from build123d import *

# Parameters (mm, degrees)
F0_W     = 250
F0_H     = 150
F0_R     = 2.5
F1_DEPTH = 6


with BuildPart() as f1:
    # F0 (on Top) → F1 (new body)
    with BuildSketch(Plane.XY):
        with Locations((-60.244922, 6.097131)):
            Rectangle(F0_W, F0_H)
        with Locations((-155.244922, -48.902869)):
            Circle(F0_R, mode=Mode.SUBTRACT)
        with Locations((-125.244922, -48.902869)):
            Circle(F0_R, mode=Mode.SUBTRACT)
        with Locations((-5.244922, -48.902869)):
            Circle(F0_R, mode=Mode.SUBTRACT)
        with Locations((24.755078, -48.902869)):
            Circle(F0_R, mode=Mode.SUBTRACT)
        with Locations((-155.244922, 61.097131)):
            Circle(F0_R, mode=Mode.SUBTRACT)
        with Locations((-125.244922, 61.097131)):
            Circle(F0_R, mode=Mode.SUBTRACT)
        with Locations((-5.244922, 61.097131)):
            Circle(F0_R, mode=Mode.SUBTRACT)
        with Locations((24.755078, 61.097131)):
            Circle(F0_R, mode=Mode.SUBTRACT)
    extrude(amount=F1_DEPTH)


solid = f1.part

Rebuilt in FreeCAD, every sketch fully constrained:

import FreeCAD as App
import Part
import Sketcher
Q = App.Units.Quantity


def add_polygon(sketch, points):
    """Adds a closed chain of lines whose ends are joined by coincident constraints."""
    first, n = sketch.GeometryCount, len(points)
    for a, b in zip(points, points[1:] + points[:1]):
        sketch.addGeometry(Part.LineSegment(App.Vector(*a, 0), App.Vector(*b, 0)), False)
    for i in range(n):
        sketch.addConstraint(Sketcher.Constraint("Coincident", first + i, 2, first + (i + 1) % n, 1))

doc = App.newDocument("Part")
body = doc.addObject("PartDesign::Body", "Body")

sketch1 = body.newObject("Sketcher::SketchObject", "Sketch")
sketch1.AttachmentSupport = (doc.getObject("XY_Plane"), [""])
sketch1.MapMode = "FlatFace"
add_polygon(sketch1, [(-185.244922, 81.097131), (-185.244922, -68.902869), (64.755078, -68.902869), (64.755078, 81.097131)])
sketch1.addGeometry(Part.Circle(App.Vector(-155.244922, -48.902869, 0), App.Vector(0, 0, 1), 2.5), False)
sketch1.addGeometry(Part.Circle(App.Vector(-125.244922, -48.902869, 0), App.Vector(0, 0, 1), 2.5), False)
sketch1.addGeometry(Part.Circle(App.Vector(-5.244922, -48.902869, 0), App.Vector(0, 0, 1), 2.5), False)
sketch1.addGeometry(Part.Circle(App.Vector(24.755078, -48.902869, 0), App.Vector(0, 0, 1), 2.5), False)
sketch1.addGeometry(Part.Circle(App.Vector(-155.244922, 61.097131, 0), App.Vector(0, 0, 1), 2.5), False)
sketch1.addGeometry(Part.Circle(App.Vector(-125.244922, 61.097131, 0), App.Vector(0, 0, 1), 2.5), False)
sketch1.addGeometry(Part.Circle(App.Vector(-5.244922, 61.097131, 0), App.Vector(0, 0, 1), 2.5), False)
sketch1.addGeometry(Part.Circle(App.Vector(24.755078, 61.097131, 0), App.Vector(0, 0, 1), 2.5), False)
sketch1.addConstraint([
    Sketcher.Constraint("Vertical", 0),
    Sketcher.Constraint("Horizontal", 1),
    Sketcher.Constraint("Vertical", 2),
    Sketcher.Constraint("Horizontal", 3),
    Sketcher.Constraint("Equal", 4, 5),
    Sketcher.Constraint("Equal", 5, 6),
    Sketcher.Constraint("Equal", 6, 7),
    Sketcher.Constraint("Equal", 7, 8),
    Sketcher.Constraint("Equal", 8, 9),
    Sketcher.Constraint("Equal", 9, 10),
    Sketcher.Constraint("Equal", 10, 11),
    Sketcher.Constraint("Horizontal", 4, 3, 5, 3),
    Sketcher.Constraint("Horizontal", 5, 3, 6, 3),
    Sketcher.Constraint("Horizontal", 6, 3, 7, 3),
    Sketcher.Constraint("Horizontal", 8, 3, 9, 3),
    Sketcher.Constraint("Horizontal", 9, 3, 10, 3),
    Sketcher.Constraint("Horizontal", 10, 3, 11, 3),
    Sketcher.Constraint("Vertical", 4, 3, 8, 3),
    Sketcher.Constraint("Vertical", 5, 3, 9, 3),
    Sketcher.Constraint("Vertical", 6, 3, 10, 3),
    Sketcher.Constraint("Vertical", 7, 3, 11, 3),
    Sketcher.Constraint("Diameter", 4, Q("5 mm")),
    Sketcher.Constraint("DistanceX", 1, 1, 1, 2, Q("250 mm")),
    Sketcher.Constraint("DistanceY", 0, 2, 0, 1, Q("150 mm")),
    Sketcher.Constraint("DistanceX", 4, 3, 5, 3, Q("30 mm")),
    Sketcher.Constraint("DistanceX", 5, 3, 6, 3, Q("120 mm")),
    Sketcher.Constraint("DistanceX", 6, 3, 7, 3, Q("30 mm")),
    Sketcher.Constraint("DistanceY", 4, 3, 8, 3, Q("110 mm")),
    Sketcher.Constraint("DistanceX", 0, 2, 4, 3, Q("30 mm")),
    Sketcher.Constraint("DistanceY", 0, 2, 4, 3, Q("20 mm")),
    Sketcher.Constraint("DistanceX", 4, 3, -1, 1, Q("155.244922 mm")),
    Sketcher.Constraint("DistanceY", 4, 3, -1, 1, Q("48.902869 mm")),
])
pad1 = body.newObject("PartDesign::Pad", "Pad")
pad1.Profile = sketch1
pad1.Length = 6

doc.recompute()
